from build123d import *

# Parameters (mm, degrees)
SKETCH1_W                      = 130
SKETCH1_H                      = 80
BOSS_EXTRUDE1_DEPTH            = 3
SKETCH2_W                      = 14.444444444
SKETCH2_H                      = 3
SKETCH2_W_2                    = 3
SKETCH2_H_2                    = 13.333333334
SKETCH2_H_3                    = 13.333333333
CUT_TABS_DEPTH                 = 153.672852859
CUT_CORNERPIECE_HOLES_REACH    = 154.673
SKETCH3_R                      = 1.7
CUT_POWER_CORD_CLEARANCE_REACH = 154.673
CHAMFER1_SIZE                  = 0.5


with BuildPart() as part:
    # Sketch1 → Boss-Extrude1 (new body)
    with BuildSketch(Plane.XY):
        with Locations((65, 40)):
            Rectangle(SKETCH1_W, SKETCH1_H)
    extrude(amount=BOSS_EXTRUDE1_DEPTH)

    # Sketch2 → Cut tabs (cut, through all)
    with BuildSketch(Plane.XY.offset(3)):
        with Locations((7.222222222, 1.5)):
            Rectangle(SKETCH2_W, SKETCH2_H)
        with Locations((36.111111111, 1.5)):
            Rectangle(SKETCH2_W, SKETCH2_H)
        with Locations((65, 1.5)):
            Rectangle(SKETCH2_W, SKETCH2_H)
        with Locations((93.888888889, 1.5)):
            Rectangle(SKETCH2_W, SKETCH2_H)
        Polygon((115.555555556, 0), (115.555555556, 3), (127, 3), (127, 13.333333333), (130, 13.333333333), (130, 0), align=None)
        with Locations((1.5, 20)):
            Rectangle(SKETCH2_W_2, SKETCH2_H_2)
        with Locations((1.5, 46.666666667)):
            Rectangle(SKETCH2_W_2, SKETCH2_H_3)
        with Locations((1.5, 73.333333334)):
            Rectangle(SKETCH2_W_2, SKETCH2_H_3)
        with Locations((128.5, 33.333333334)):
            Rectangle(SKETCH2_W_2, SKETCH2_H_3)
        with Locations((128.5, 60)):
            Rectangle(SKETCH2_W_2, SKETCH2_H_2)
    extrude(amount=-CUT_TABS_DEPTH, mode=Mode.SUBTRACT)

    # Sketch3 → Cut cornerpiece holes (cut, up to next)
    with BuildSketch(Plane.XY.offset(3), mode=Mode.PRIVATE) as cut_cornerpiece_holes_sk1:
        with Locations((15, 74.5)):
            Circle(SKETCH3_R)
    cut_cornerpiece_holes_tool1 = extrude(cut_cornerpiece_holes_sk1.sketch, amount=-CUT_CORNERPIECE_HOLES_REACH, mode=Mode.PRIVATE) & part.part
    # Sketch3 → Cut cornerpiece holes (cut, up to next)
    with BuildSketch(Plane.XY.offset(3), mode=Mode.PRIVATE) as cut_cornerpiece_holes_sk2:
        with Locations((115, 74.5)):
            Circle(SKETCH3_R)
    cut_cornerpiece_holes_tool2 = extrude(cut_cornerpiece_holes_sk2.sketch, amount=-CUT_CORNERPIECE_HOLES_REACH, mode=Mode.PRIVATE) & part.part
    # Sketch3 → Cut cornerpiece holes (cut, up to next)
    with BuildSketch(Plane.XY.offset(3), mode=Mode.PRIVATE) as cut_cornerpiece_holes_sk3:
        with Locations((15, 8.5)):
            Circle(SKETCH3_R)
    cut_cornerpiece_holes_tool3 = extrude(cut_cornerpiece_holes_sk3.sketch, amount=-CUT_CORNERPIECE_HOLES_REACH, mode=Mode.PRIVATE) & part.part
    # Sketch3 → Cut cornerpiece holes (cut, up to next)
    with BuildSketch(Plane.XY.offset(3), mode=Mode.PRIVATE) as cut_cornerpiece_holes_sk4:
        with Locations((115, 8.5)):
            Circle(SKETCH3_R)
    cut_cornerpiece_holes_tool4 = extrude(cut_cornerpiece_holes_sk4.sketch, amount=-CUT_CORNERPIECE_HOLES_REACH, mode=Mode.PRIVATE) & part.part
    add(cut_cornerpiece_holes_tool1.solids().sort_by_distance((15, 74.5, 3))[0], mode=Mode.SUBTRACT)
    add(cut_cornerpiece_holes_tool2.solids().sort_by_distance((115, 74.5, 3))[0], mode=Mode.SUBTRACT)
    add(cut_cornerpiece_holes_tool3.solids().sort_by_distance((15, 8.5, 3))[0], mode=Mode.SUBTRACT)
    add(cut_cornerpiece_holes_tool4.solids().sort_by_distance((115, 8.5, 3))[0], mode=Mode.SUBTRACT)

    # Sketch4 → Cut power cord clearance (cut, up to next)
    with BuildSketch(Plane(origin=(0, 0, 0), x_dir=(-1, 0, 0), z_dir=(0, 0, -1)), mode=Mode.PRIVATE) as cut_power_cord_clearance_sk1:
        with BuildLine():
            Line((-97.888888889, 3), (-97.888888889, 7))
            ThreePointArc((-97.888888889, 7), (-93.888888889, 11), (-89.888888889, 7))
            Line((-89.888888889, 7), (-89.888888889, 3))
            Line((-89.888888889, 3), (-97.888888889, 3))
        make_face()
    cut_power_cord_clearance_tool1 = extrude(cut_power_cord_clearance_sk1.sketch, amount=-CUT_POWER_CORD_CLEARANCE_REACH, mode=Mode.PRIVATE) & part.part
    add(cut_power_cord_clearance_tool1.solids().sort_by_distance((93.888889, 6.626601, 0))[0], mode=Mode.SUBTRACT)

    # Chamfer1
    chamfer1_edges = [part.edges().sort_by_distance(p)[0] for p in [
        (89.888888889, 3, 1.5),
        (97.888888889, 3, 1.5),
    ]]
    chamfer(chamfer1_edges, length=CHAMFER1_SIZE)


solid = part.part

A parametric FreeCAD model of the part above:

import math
import FreeCAD as App
import Part
import Sketcher
Q = App.Units.Quantity


def edges_at(feature, points):
    """Names of the edges that pass closest to the given points."""
    edges = feature.Shape.Edges
    near = lambda p: min(range(len(edges)), key=lambda i: edges[i].distToShape(Part.Vertex(*p))[0])
    return sorted({f"Edge{near(p) + 1}" for p in points})

doc = App.newDocument("Part")
body = doc.addObject("PartDesign::Body", "Body")

sketch1 = body.newObject("Sketcher::SketchObject", "Sketch")
sketch1.AttachmentSupport = (doc.getObject("XY_Plane"), [""])
sketch1.MapMode = "FlatFace"
sketch1.addGeometry([
    Part.LineSegment(App.Vector(0, 80, 0), App.Vector(0, 0, 0)),
    Part.LineSegment(App.Vector(0, 0, 0), App.Vector(130, 0, 0)),
    Part.LineSegment(App.Vector(130, 0, 0), App.Vector(130, 80, 0)),
    Part.LineSegment(App.Vector(130, 80, 0), App.Vector(0, 80, 0)),
], False)
sketch1.addConstraint([
    Sketcher.Constraint("Coincident", 0, 2, 1, 1),
    Sketcher.Constraint("Coincident", 1, 2, 2, 1),
    Sketcher.Constraint("Coincident", 2, 2, 3, 1),
    Sketcher.Constraint("Coincident", 3, 2, 0, 1),
    Sketcher.Constraint("Vertical", 0),
    Sketcher.Constraint("Horizontal", 1),
    Sketcher.Constraint("Vertical", 2),
    Sketcher.Constraint("Horizontal", 3),
    Sketcher.Constraint("Coincident", 0, 2, -1, 1),
    Sketcher.Constraint("DistanceX", 1, 1, 1, 2, Q("130 mm")),
    Sketcher.Constraint("DistanceY", 0, 2, 0, 1, Q("80 mm")),
])
pad1 = body.newObject("PartDesign::Pad", "Pad")
pad1.Profile = sketch1
pad1.Length = 3

sketch2 = body.newObject("Sketcher::SketchObject", "Sketch001")
sketch2.AttachmentSupport = (doc.getObject("XY_Plane"), [""])
sketch2.MapMode = "FlatFace"
sketch2.AttachmentOffset = App.Placement(App.Vector(0, 0, 3), App.Rotation())
sketch2.addGeometry([
    Part.LineSegment(App.Vector(0, 3, 0), App.Vector(0, 0, 0)),
    Part.LineSegment(App.Vector(0, 0, 0), App.Vector(14.4, 0, 0)),
    Part.LineSegment(App.Vector(14.4, 0, 0), App.Vector(14.4, 3, 0)),
    Part.LineSegment(App.Vector(14.4, 3, 0), App.Vector(0, 3, 0)),
    Part.LineSegment(App.Vector(28.9, 3, 0), App.Vector(28.9, 0, 0)),
    Part.LineSegment(App.Vector(28.9, 0, 0), App.Vector(43.3, 0, 0)),
    Part.LineSegment(App.Vector(43.3, 0, 0), App.Vector(43.3, 3, 0)),
    Part.LineSegment(App.Vector(43.3, 3, 0), App.Vector(28.9, 3, 0)),
    Part.LineSegment(App.Vector(57.8, 3, 0), App.Vector(57.8, 0, 0)),
    Part.LineSegment(App.Vector(57.8, 0, 0), App.Vector(72.2, 0, 0)),
    Part.LineSegment(App.Vector(72.2, 0, 0), App.Vector(72.2, 3, 0)),
    Part.LineSegment(App.Vector(72.2, 3, 0), App.Vector(57.8, 3, 0)),
    Part.LineSegment(App.Vector(86.7, 3, 0), App.Vector(86.7, 0, 0)),
    Part.LineSegment(App.Vector(86.7, 0, 0), App.Vector(101.1, 0, 0)),
    Part.LineSegment(App.Vector(101.1, 0, 0), App.Vector(101.1, 3, 0)),
    Part.LineSegment(App.Vector(101.1, 3, 0), App.Vector(86.7, 3, 0)),
    Part.LineSegment(App.Vector(115.6, 3, 0), App.Vector(115.6, 0, 0)),
    Part.LineSegment(App.Vector(115.6, 0, 0), App.Vector(130, 0, 0)),
    Part.LineSegment(App.Vector(130, 0, 0), App.Vector(130, 13.3, 0)),
    Part.LineSegment(App.Vector(130, 13.3, 0), App.Vector(127, 13.3, 0)),
    Part.LineSegment(App.Vector(127, 13.3, 0), App.Vector(127, 3, 0)),
    Part.LineSegment(App.Vector(127, 3, 0), App.Vector(115.6, 3, 0)),
    Part.LineSegment(App.Vector(0, 26.7, 0), App.Vector(0, 13.3, 0)),
    Part.LineSegment(App.Vector(0, 13.3, 0), App.Vector(3, 13.3, 0)),
    Part.LineSegment(App.Vector(3, 13.3, 0), App.Vector(3, 26.7, 0)),
    Part.LineSegment(App.Vector(3, 26.7, 0), App.Vector(0, 26.7, 0)),
    Part.LineSegment(App.Vector(0, 53.3, 0), App.Vector(0, 40, 0)),
    Part.LineSegment(App.Vector(0, 40, 0), App.Vector(3, 40, 0)),
    Part.LineSegment(App.Vector(3, 40, 0), App.Vector(3, 53.3, 0)),
    Part.LineSegment(App.Vector(3, 53.3, 0), App.Vector(0, 53.3, 0)),
    Part.LineSegment(App.Vector(0, 80, 0), App.Vector(0, 66.7, 0)),
    Part.LineSegment(App.Vector(0, 66.7, 0), App.Vector(3, 66.7, 0)),
    Part.LineSegment(App.Vector(3, 66.7, 0), App.Vector(3, 80, 0)),
    Part.LineSegment(App.Vector(3, 80, 0), App.Vector(0, 80, 0)),
    Part.LineSegment(App.Vector(127, 40, 0), App.Vector(127, 26.7, 0)),
    Part.LineSegment(App.Vector(127, 26.7, 0), App.Vector(130, 26.7, 0)),
    Part.LineSegment(App.Vector(130, 26.7, 0), App.Vector(130, 40, 0)),
    Part.LineSegment(App.Vector(130, 40, 0), App.Vector(127, 40, 0)),
    Part.LineSegment(App.Vector(127, 66.7, 0), App.Vector(127, 53.3, 0)),
    Part.LineSegment(App.Vector(127, 53.3, 0), App.Vector(130, 53.3, 0)),
    Part.LineSegment(App.Vector(130, 53.3, 0), App.Vector(130, 66.7, 0)),
    Part.LineSegment(App.Vector(130, 66.7, 0), App.Vector(127, 66.7, 0)),
], False)
sketch2.addConstraint([
    Sketcher.Constraint("Coincident", 0, 2, 1, 1),
    Sketcher.Constraint("Coincident", 1, 2, 2, 1),
    Sketcher.Constraint("Coincident", 2, 2, 3, 1),
    Sketcher.Constraint("Coincident", 3, 2, 0, 1),
    Sketcher.Constraint("Coincident", 4, 2, 5, 1),
    Sketcher.Constraint("Coincident", 5, 2, 6, 1),
    Sketcher.Constraint("Coincident", 6, 2, 7, 1),
    Sketcher.Constraint("Coincident", 7, 2, 4, 1),
    Sketcher.Constraint("Coincident", 8, 2, 9, 1),
    Sketcher.Constraint("Coincident", 9, 2, 10, 1),
    Sketcher.Constraint("Coincident", 10, 2, 11, 1),
    Sketcher.Constraint("Coincident", 11, 2, 8, 1),
    Sketcher.Constraint("Coincident", 12, 2, 13, 1),
    Sketcher.Constraint("Coincident", 13, 2, 14, 1),
    Sketcher.Constraint("Coincident", 14, 2, 15, 1),
    Sketcher.Constraint("Coincident", 15, 2, 12, 1),
    Sketcher.Constraint("Coincident", 16, 2, 17, 1),
    Sketcher.Constraint("Coincident", 17, 2, 18, 1),
    Sketcher.Constraint("Coincident", 18, 2, 19, 1),
    Sketcher.Constraint("Coincident", 19, 2, 20, 1),
    Sketcher.Constraint("Coincident", 20, 2, 21, 1),
    Sketcher.Constraint("Coincident", 21, 2, 16, 1),
    Sketcher.Constraint("Coincident", 22, 2, 23, 1),
    Sketcher.Constraint("Coincident", 23, 2, 24, 1),
    Sketcher.Constraint("Coincident", 24, 2, 25, 1),
    Sketcher.Constraint("Coincident", 25, 2, 22, 1),
    Sketcher.Constraint("Coincident", 26, 2, 27, 1),
    Sketcher.Constraint("Coincident", 27, 2, 28, 1),
    Sketcher.Constraint("Coincident", 28, 2, 29, 1),
    Sketcher.Constraint("Coincident", 29, 2, 26, 1),
    Sketcher.Constraint("Coincident", 30, 2, 31, 1),
    Sketcher.Constraint("Coincident", 31, 2, 32, 1),
    Sketcher.Constraint("Coincident", 32, 2, 33, 1),
    Sketcher.Constraint("Coincident", 33, 2, 30, 1),
    Sketcher.Constraint("Coincident", 34, 2, 35, 1),
    Sketcher.Constraint("Coincident", 35, 2, 36, 1),
    Sketcher.Constraint("Coincident", 36, 2, 37, 1),
    Sketcher.Constraint("Coincident", 37, 2, 34, 1),
    Sketcher.Constraint("Coincident", 38, 2, 39, 1),
    Sketcher.Constraint("Coincident", 39, 2, 40, 1),
    Sketcher.Constraint("Coincident", 40, 2, 41, 1),
    Sketcher.Constraint("Coincident", 41, 2, 38, 1),
    Sketcher.Constraint("Vertical", 0),
    Sketcher.Constraint("Horizontal", 1),
    Sketcher.Constraint("Vertical", 2),
    Sketcher.Constraint("Horizontal", 3),
    Sketcher.Constraint("Vertical", 4),
    Sketcher.Constraint("Horizontal", 5),
    Sketcher.Constraint("Vertical", 6),
    Sketcher.Constraint("Horizontal", 7),
    Sketcher.Constraint("Vertical", 8),
    Sketcher.Constraint("Horizontal", 9),
    Sketcher.Constraint("Vertical", 10),
    Sketcher.Constraint("Horizontal", 11),
    Sketcher.Constraint("Vertical", 12),
    Sketcher.Constraint("Horizontal", 13),
    Sketcher.Constraint("Vertical", 14),
    Sketcher.Constraint("Horizontal", 15),
    Sketcher.Constraint("Vertical", 16),
    Sketcher.Constraint("Horizontal", 17),
    Sketcher.Constraint("Vertical", 18),
    Sketcher.Constraint("Horizontal", 19),
    Sketcher.Constraint("Vertical", 20),
    Sketcher.Constraint("Horizontal", 21),
    Sketcher.Constraint("Vertical", 22),
    Sketcher.Constraint("Horizontal", 23),
    Sketcher.Constraint("Vertical", 24),
    Sketcher.Constraint("Horizontal", 25),
    Sketcher.Constraint("Vertical", 26),
    Sketcher.Constraint("Horizontal", 27),
    Sketcher.Constraint("Vertical", 28),
    Sketcher.Constraint("Horizontal", 29),
    Sketcher.Constraint("Vertical", 30),
    Sketcher.Constraint("Horizontal", 31),
    Sketcher.Constraint("Vertical", 32),
    Sketcher.Constraint("Horizontal", 33),
    Sketcher.Constraint("Vertical", 34),
    Sketcher.Constraint("Horizontal", 35),
    Sketcher.Constraint("Vertical", 36),
    Sketcher.Constraint("Horizontal", 37),
    Sketcher.Constraint("Vertical", 38),
    Sketcher.Constraint("Horizontal", 39),
    Sketcher.Constraint("Vertical", 40),
    Sketcher.Constraint("Horizontal", 41),
    Sketcher.Constraint("Coincident", 0, 2, -1, 1),
    Sketcher.Constraint("PointOnObject", 4, 2, -1),
    Sketcher.Constraint("PointOnObject", 8, 2, -1),
    Sketcher.Constraint("PointOnObject", 12, 2, -1),
    Sketcher.Constraint("PointOnObject", 16, 2, -1),
    Sketcher.Constraint("PointOnObject", 22, 2, -2),
    Sketcher.Constraint("PointOnObject", 26, 2, -2),
    Sketcher.Constraint("PointOnObject", 30, 2, -2),
    Sketcher.Constraint("Horizontal", 3, 2, 6, 2),
    Sketcher.Constraint("Horizontal", 7, 2, 10, 2),
    Sketcher.Constraint("Horizontal", 11, 2, 14, 2),
    Sketcher.Constraint("Horizontal", 15, 2, 20, 2),
    Sketcher.Constraint("Horizontal", 19, 2, 22, 2),
    Sketcher.Constraint("Horizontal", 25, 2, 34, 2),
    Sketcher.Constraint("Horizontal", 27, 2, 36, 2),
    Sketcher.Constraint("Horizontal", 29, 2, 38, 2),
    Sketcher.Constraint("Horizontal", 31, 2, 40, 2),
    Sketcher.Constraint("Vertical", 24, 2, 27, 2),
    Sketcher.Constraint("Vertical", 28, 2, 31, 2),
    Sketcher.Constraint("Vertical", 20, 2, 34, 2),
    Sketcher.Constraint("Vertical", 18, 2, 35, 2),
    Sketcher.Constraint("Vertical", 37, 2, 38, 2),
    Sketcher.Constraint("Vertical", 36, 2, 39, 2),
    Sketcher.Constraint("Equal", 3, 5),
    Sketcher.Constraint("Equal", 7, 9),
    Sketcher.Constraint("Equal", 11, 13),
    Sketcher.Constraint("Equal", 15, 17),
    Sketcher.Constraint("Equal", 19, 23),
    Sketcher.Constraint("Equal", 41, 0),
    Sketcher.Constraint("Equal", 18, 22),
    Sketcher.Constraint("Equal", 24, 26),
    Sketcher.Constraint("Equal", 28, 30),
    Sketcher.Constraint("Equal", 32, 34),
    Sketcher.Constraint("Equal", 36, 38),
    Sketcher.Constraint("DistanceX", 19, 2, 19, 1, Q("3 mm")),
    Sketcher.Constraint("DistanceX", -1, 1, 17, 2, Q("130 mm")),
    Sketcher.Constraint("DistanceY", -1, 1, 26, 2, Q("40 mm")),
    Sketcher.Constraint("DistanceX", 1, 1, 1, 2, Q("14.444444 mm")),
    Sketcher.Constraint("DistanceX", -1, 1, 4, 2, Q("28.888889 mm")),
    Sketcher.Constraint("DistanceX", -1, 1, 13, 2, Q("101.111111 mm")),
    Sketcher.Constraint("DistanceX", 4, 2, 8, 2, Q("28.888889 mm")),
])
pocket1 = body.newObject("PartDesign::Pocket", "Pocket")
pocket1.Profile = sketch2
pocket1.Type = "ThroughAll"

sketch3 = body.newObject("Sketcher::SketchObject", "Sketch002")
sketch3.AttachmentSupport = (doc.getObject("XY_Plane"), [""])
sketch3.MapMode = "FlatFace"
sketch3.AttachmentOffset = App.Placement(App.Vector(0, 0, 3), App.Rotation())
sketch3.addGeometry(Part.Circle(App.Vector(15, 74.5, 0), App.Vector(0, 0, 1), 1.7), False)
sketch3.addConstraint([
    Sketcher.Constraint("Diameter", 0, Q("3.4 mm")),
    Sketcher.Constraint("DistanceX", -1, 1, 0, 3, Q("15 mm")),
    Sketcher.Constraint("DistanceY", -1, 1, 0, 3, Q("74.5 mm")),
])
pocket2 = body.newObject("PartDesign::Pocket", "Pocket001")
pocket2.Profile = sketch3
pocket2.Type = "UpToFirst"

sketch4 = body.newObject("Sketcher::SketchObject", "Sketch003")
sketch4.AttachmentSupport = (doc.getObject("XY_Plane"), [""])
sketch4.MapMode = "FlatFace"
sketch4.AttachmentOffset = App.Placement(App.Vector(0, 0, 3), App.Rotation())
sketch4.addGeometry(Part.Circle(App.Vector(115, 74.5, 0), App.Vector(0, 0, 1), 1.7), False)
sketch4.addConstraint([
    Sketcher.Constraint("Diameter", 0, Q("3.4 mm")),
    Sketcher.Constraint("DistanceX", -1, 1, 0, 3, Q("115 mm")),
    Sketcher.Constraint("DistanceY", -1, 1, 0, 3, Q("74.5 mm")),
])
pocket3 = body.newObject("PartDesign::Pocket", "Pocket002")
pocket3.Profile = sketch4
pocket3.Type = "UpToFirst"

sketch5 = body.newObject("Sketcher::SketchObject", "Sketch004")
sketch5.AttachmentSupport = (doc.getObject("XY_Plane"), [""])
sketch5.MapMode = "FlatFace"
sketch5.AttachmentOffset = App.Placement(App.Vector(0, 0, 3), App.Rotation())
sketch5.addGeometry(Part.Circle(App.Vector(15, 8.5, 0), App.Vector(0, 0, 1), 1.7), False)
sketch5.addConstraint([
    Sketcher.Constraint("Diameter", 0, Q("3.4 mm")),
    Sketcher.Constraint("DistanceX", -1, 1, 0, 3, Q("15 mm")),
    Sketcher.Constraint("DistanceY", -1, 1, 0, 3, Q("8.5 mm")),
])
pocket4 = body.newObject("PartDesign::Pocket", "Pocket003")
pocket4.Profile = sketch5
pocket4.Type = "UpToFirst"

sketch6 = body.newObject("Sketcher::SketchObject", "Sketch005")
sketch6.AttachmentSupport = (doc.getObject("XY_Plane"), [""])
sketch6.MapMode = "FlatFace"
sketch6.AttachmentOffset = App.Placement(App.Vector(0, 0, 3), App.Rotation())
sketch6.addGeometry(Part.Circle(App.Vector(115, 8.5, 0), App.Vector(0, 0, 1), 1.7), False)
sketch6.addConstraint([
    Sketcher.Constraint("Diameter", 0, Q("3.4 mm")),
    Sketcher.Constraint("DistanceX", -1, 1, 0, 3, Q("115 mm")),
    Sketcher.Constraint("DistanceY", -1, 1, 0, 3, Q("8.5 mm")),
])
pocket5 = body.newObject("PartDesign::Pocket", "Pocket004")
pocket5.Profile = sketch6
pocket5.Type = "UpToFirst"

sketch7 = body.newObject("Sketcher::SketchObject", "Sketch006")
sketch7.AttachmentSupport = (doc.getObject("XY_Plane"), [""])
sketch7.MapMode = "FlatFace"
sketch7.addGeometry([
    Part.LineSegment(App.Vector(97.9, 7, 0), App.Vector(97.9, 3, 0)),
    Part.LineSegment(App.Vector(97.9, 3, 0), App.Vector(89.9, 3, 0)),
    Part.LineSegment(App.Vector(89.9, 3, 0), App.Vector(89.9, 7, 0)),
    Part.ArcOfCircle(Part.Circle(App.Vector(93.9, 7, 0), App.Vector(0, 0, 1), 4), math.radians(0), math.radians(180)),
], False)
sketch7.addConstraint([
    Sketcher.Constraint("Coincident", 0, 2, 1, 1),
    Sketcher.Constraint("Coincident", 1, 2, 2, 1),
    Sketcher.Constraint("Tangent", 2, 2, 3, 2),
    Sketcher.Constraint("Tangent", 3, 1, 0, 1),
    Sketcher.Constraint("Vertical", 0),
    Sketcher.Constraint("Horizontal", 1),
    Sketcher.Constraint("Vertical", 2),
    Sketcher.Constraint("Radius", 3, Q("4 mm")),
    Sketcher.Constraint("DistanceY", 0, 2, 0, 1, Q("4 mm")),
    Sketcher.Constraint("DistanceY", -1, 1, 3, 3, Q("7 mm")),
    Sketcher.Constraint("DistanceX", -1, 1, 3, 3, Q("93.888889 mm")),
])
pocket6 = body.newObject("PartDesign::Pocket", "Pocket005")
pocket6.Profile = sketch7
pocket6.Type = "UpToFirst"
pocket6.Reversed = True
doc.recompute()

chamfer = body.newObject("PartDesign::Chamfer", "Chamfer")
chamfer.Base = (pocket6, edges_at(pocket6, [(89.889, 3, 1.5), (97.889, 3, 1.5)]))
chamfer.Size = 0.5

doc.recompute()
